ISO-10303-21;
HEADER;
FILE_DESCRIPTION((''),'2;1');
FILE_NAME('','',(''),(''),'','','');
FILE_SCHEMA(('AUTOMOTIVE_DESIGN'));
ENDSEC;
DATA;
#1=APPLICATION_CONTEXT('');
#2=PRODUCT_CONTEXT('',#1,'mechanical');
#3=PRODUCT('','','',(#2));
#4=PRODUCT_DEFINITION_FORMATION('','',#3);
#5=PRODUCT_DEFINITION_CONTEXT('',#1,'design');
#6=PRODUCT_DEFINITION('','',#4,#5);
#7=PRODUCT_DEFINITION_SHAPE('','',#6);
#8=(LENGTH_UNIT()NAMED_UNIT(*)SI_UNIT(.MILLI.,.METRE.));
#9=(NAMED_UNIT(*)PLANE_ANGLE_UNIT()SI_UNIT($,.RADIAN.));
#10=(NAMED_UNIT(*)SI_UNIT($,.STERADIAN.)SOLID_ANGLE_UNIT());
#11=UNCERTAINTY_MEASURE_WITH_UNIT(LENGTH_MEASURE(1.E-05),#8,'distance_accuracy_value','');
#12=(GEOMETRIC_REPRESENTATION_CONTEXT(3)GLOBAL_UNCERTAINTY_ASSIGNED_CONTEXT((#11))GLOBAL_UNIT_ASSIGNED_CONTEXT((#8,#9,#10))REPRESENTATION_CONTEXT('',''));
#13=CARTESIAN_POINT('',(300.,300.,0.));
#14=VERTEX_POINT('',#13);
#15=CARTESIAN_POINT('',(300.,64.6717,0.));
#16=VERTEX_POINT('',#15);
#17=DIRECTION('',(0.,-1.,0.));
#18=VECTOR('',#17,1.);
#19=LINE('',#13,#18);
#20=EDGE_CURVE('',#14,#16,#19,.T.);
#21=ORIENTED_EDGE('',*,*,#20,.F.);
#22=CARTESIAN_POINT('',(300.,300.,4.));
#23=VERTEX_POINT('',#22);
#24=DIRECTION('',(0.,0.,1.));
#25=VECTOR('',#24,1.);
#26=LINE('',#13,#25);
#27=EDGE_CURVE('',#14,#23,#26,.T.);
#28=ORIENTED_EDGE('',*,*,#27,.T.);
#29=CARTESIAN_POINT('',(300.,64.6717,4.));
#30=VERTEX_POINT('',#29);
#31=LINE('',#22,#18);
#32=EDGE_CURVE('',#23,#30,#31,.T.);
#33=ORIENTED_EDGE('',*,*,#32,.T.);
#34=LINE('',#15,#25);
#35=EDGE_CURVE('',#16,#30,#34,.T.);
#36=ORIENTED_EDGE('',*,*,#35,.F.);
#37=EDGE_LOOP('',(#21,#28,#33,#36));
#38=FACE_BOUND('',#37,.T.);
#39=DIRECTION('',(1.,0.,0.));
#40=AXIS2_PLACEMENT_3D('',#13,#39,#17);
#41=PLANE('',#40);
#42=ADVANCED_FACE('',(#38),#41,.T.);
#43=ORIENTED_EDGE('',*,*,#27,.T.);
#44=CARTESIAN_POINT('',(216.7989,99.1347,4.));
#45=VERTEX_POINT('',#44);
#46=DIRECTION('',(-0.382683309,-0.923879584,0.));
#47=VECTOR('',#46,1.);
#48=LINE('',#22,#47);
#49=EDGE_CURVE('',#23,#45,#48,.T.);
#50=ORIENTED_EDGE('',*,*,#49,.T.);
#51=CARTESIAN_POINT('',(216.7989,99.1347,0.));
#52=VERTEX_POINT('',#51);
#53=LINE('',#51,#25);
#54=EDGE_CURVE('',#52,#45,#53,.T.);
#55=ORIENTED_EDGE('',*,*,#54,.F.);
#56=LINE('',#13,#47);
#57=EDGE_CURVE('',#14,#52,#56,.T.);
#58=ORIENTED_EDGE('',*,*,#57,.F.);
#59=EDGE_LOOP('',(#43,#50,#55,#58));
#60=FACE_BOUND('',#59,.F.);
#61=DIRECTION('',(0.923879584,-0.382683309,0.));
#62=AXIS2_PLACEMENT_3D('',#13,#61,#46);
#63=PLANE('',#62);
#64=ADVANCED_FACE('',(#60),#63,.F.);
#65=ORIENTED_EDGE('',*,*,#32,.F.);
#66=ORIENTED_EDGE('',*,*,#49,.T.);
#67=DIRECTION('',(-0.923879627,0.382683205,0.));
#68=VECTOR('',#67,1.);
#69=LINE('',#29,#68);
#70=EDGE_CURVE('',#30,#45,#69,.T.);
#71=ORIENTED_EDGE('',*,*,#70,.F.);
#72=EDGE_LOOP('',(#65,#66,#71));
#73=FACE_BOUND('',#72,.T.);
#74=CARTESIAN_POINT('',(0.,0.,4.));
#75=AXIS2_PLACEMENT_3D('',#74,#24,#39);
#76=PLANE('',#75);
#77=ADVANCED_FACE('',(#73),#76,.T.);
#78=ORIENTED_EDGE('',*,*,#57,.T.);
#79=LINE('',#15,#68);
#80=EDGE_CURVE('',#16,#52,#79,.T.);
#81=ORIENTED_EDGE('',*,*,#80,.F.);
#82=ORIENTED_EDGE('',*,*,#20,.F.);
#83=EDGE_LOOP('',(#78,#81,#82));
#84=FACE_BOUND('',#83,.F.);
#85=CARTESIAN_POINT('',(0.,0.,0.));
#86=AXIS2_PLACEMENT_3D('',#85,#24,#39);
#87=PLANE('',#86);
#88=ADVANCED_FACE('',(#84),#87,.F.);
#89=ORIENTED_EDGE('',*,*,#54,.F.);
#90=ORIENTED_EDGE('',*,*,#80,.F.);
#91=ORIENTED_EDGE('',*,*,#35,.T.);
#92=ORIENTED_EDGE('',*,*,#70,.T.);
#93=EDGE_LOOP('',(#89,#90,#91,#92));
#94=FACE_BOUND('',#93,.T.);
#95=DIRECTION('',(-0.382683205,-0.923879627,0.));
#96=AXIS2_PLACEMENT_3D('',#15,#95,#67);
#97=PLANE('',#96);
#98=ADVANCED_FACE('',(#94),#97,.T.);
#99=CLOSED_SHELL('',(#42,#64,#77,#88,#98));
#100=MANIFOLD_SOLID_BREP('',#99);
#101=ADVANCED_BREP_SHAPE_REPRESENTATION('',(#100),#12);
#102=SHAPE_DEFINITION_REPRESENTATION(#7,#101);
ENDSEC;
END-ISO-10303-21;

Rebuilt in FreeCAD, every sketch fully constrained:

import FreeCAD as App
import Part
import Sketcher
from FreeCAD import Vector
Q = App.Units.Quantity

doc = App.newDocument("Part")
body = doc.addObject("PartDesign::Body", "Body")

# Sketch on XY plane
sketch1 = body.newObject("Sketcher::SketchObject", "Sketch")
sketch1.AttachmentSupport = (doc.getObject("XY_Plane"), [""])
sketch1.MapMode = "FlatFace"
sketch1.addGeometry([
    Part.LineSegment(Vector(300, 65, 0), Vector(300, 300, 0)),
    Part.LineSegment(Vector(300, 300, 0), Vector(217, 99, 0)),
    Part.LineSegment(Vector(217, 99, 0), Vector(300, 65, 0)),
], False)
sketch1.addConstraint([
    Sketcher.Constraint("Coincident", 0, 2, 1, 1),
    Sketcher.Constraint("Coincident", 1, 2, 2, 1),
    Sketcher.Constraint("Coincident", 2, 2, 0, 1),
    Sketcher.Constraint("Vertical", 0),
    Sketcher.Constraint("Perpendicular", 1, 2),
    Sketcher.Constraint("DistanceX", -1, 1, 0, 2, Q("300 mm")),
    Sketcher.Constraint("DistanceY", -1, 1, 0, 2, Q("300 mm")),
    Sketcher.Constraint("Angle", 1, Q("-112.5 deg")),
    Sketcher.Constraint("Distance", 1, Q("217.415 mm")),
])
pad1 = body.newObject("PartDesign::Pad", "Pad")
pad1.Profile = sketch1
pad1.Length = 4

doc.recompute()
